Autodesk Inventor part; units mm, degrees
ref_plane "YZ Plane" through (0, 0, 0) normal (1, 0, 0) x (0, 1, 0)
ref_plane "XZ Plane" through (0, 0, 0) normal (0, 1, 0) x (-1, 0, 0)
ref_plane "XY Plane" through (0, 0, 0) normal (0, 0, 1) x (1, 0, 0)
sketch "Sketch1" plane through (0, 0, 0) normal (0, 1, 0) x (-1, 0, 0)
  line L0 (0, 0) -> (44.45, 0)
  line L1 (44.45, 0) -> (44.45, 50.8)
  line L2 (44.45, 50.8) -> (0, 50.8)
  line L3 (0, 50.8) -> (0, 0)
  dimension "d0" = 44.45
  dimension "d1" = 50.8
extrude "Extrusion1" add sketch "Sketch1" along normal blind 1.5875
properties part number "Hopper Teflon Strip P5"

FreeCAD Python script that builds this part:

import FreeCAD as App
import Part
import Sketcher
Q = App.Units.Quantity

doc = App.newDocument("Part")
body = doc.addObject("PartDesign::Body", "Body")

sketch1 = body.newObject("Sketcher::SketchObject", "Sketch")
sketch1.AttachmentSupport = (doc.getObject("XZ_Plane"), [""])
sketch1.MapMode = "FlatFace"
sketch1.addGeometry([
    Part.LineSegment(App.Vector(0, 50.8, 0), App.Vector(0, 0, 0)),
    Part.LineSegment(App.Vector(0, 0, 0), App.Vector(-44.45, 0, 0)),
    Part.LineSegment(App.Vector(-44.45, 0, 0), App.Vector(-44.45, 50.8, 0)),
    Part.LineSegment(App.Vector(-44.45, 50.8, 0), App.Vector(0, 50.8, 0)),
], False)
sketch1.addConstraint([
    Sketcher.Constraint("Coincident", 0, 2, 1, 1),
    Sketcher.Constraint("Coincident", 1, 2, 2, 1),
    Sketcher.Constraint("Coincident", 2, 2, 3, 1),
    Sketcher.Constraint("Coincident", 3, 2, 0, 1),
    Sketcher.Constraint("Vertical", 0),
    Sketcher.Constraint("Horizontal", 1),
    Sketcher.Constraint("Vertical", 2),
    Sketcher.Constraint("Horizontal", 3),
    Sketcher.Constraint("Coincident", 0, 2, -1, 1),
    Sketcher.Constraint("DistanceY", 0, 2, 0, 1, Q("2 in")),
    Sketcher.Constraint("DistanceX", 1, 2, 1, 1, Q("1.75 in")),
])
pad1 = body.newObject("PartDesign::Pad", "Pad")
pad1.Profile = sketch1
pad1.Length = Q("0.0625 in")
pad1.Reversed = True

doc.recompute()
